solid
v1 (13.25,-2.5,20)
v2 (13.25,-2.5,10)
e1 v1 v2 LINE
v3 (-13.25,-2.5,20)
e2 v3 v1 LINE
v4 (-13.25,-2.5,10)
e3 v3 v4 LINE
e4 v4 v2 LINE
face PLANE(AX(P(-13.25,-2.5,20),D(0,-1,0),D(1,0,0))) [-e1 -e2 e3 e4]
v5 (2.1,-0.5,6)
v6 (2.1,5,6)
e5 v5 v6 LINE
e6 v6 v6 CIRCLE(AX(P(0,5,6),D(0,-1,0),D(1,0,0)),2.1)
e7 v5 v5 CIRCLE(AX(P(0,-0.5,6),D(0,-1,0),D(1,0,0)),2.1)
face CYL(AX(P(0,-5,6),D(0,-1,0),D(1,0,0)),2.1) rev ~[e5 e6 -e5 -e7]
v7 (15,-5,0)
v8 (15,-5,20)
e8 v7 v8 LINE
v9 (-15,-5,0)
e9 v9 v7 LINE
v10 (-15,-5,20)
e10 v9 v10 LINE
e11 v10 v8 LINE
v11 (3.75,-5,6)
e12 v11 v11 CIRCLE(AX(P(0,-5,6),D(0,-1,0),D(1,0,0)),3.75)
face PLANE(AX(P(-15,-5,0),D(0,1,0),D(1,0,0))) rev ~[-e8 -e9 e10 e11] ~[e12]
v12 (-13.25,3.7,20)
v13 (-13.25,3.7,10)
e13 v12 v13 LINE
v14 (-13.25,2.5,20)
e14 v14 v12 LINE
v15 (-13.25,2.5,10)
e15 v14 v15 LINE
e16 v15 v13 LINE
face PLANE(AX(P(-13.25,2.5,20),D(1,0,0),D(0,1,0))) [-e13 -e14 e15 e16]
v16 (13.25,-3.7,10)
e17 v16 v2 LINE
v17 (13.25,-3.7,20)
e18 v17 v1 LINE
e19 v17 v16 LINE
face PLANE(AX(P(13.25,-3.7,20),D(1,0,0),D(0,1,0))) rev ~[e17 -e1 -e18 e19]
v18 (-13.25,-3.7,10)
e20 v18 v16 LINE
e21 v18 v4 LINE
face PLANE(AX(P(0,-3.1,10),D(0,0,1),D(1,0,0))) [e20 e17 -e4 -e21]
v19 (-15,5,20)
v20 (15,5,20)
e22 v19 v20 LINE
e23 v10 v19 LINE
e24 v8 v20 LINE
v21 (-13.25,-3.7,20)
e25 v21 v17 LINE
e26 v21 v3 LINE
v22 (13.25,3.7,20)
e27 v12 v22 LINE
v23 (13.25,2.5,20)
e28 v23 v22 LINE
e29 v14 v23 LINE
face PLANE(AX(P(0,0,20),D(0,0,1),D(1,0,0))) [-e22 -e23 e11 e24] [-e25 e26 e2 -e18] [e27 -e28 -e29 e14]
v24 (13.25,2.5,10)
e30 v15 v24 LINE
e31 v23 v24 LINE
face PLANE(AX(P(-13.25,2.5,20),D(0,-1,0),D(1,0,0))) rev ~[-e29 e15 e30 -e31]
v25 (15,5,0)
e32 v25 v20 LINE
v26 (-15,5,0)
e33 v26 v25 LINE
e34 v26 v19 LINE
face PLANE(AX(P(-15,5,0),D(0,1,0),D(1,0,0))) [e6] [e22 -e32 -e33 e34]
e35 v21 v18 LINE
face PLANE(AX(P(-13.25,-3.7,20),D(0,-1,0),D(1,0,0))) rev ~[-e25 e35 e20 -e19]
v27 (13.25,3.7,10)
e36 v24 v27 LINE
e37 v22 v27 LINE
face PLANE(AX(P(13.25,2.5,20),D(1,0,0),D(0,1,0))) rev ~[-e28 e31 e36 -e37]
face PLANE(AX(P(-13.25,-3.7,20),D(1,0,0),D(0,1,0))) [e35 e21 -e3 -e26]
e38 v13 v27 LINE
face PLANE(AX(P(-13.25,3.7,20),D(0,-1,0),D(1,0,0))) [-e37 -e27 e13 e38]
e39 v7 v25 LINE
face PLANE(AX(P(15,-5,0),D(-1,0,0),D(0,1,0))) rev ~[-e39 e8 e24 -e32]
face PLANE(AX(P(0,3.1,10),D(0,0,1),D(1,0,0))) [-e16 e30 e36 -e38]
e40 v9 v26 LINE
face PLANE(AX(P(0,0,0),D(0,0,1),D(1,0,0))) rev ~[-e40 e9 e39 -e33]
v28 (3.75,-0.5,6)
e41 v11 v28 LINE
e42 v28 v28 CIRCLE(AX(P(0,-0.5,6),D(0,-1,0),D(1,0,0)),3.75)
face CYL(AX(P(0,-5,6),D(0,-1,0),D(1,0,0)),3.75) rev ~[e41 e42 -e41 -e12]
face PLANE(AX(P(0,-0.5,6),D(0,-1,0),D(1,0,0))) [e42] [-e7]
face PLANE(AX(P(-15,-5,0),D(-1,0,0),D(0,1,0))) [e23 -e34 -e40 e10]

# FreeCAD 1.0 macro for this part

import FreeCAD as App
import Part
import Sketcher

V = App.Vector


def add_polygon(sketch, points):
    """Adds a closed chain of lines whose ends are joined by coincident constraints."""
    first, n = sketch.GeometryCount, len(points)
    for a, b in zip(points, points[1:] + points[:1]):
        sketch.addGeometry(Part.LineSegment(App.Vector(*a, 0), App.Vector(*b, 0)), False)
    for i in range(n):
        sketch.addConstraint(Sketcher.Constraint("Coincident", first + i, 2, first + (i + 1) % n, 1))

doc = App.newDocument("Part")
params = doc.addObject("Spreadsheet::Sheet", "Params")
for row, (alias, value) in enumerate([
    ("sketch1_width", "30 mm"),
    ("sketch1_height", "10 mm"),
    ("pad1_length", "20 mm"),
    ("sketch2_diameter", "4.2 mm"),
    ("sketch3_width", "26.5 mm"),
    ("sketch3_height", "1.2 mm"),
    ("pocket2_length", "10 mm"),
    ("sketch4_diameter", "7.5 mm"),
    ("pocket3_length", "4.5 mm"),
], start=1):
    params.set(f"A{row}", alias)
    params.set(f"B{row}", "=" + value)
    params.setAlias(f"B{row}", alias)

body = doc.addObject("PartDesign::Body", "Body")

# Sketch on XY plane
sketch1 = doc.addObject("Sketcher::SketchObject", "Sketch")
body.addObject(sketch1)
sketch1.AttachmentSupport = (doc.XY_Plane, [""])
sketch1.MapMode = "FlatFace"
add_polygon(sketch1, [(-15, 5), (-15, -5), (15, -5), (15, 5)])  # lines 0-3
sketch1.addConstraint([
    Sketcher.Constraint("Vertical", 0),
    Sketcher.Constraint("Horizontal", 1),
    Sketcher.Constraint("Vertical", 2),
    Sketcher.Constraint("Horizontal", 3),
    Sketcher.Constraint("Symmetric", 0, 2, 2, 2, -1, 1),
    Sketcher.Constraint("DistanceX", 1, 1, 1, 2, 30.0),
    Sketcher.Constraint("DistanceY", 0, 2, 0, 1, 10.0),
])
sketch1.setExpression("Constraints[9]", "Params.sketch1_width")
sketch1.setExpression("Constraints[10]", "Params.sketch1_height")
pad1 = doc.addObject("PartDesign::Pad", "Pad")
body.addObject(pad1)
pad1.Profile = sketch1
pad1.setExpression("Length", "Params.pad1_length")

# Sketch on XZ plane
sketch2 = doc.addObject("Sketcher::SketchObject", "Sketch001")
body.addObject(sketch2)
sketch2.AttachmentSupport = (doc.XZ_Plane, [""])
sketch2.MapMode = "FlatFace"
sketch2.AttachmentOffset = App.Placement(V(0, 0, 5), App.Rotation())
sketch2.addGeometry(Part.Circle(V(0, 6, 0), V(0, 0, 1), 2.1), False)
sketch2.addConstraint([
    Sketcher.Constraint("PointOnObject", 0, 3, -2),
    Sketcher.Constraint("Diameter", 0, 4.2),
    Sketcher.Constraint("DistanceY", -1, 1, 0, 3, 6.0),
])
sketch2.setExpression("Constraints[1]", "Params.sketch2_diameter")
pocket1 = doc.addObject("PartDesign::Pocket", "Pocket")
body.addObject(pocket1)
pocket1.Profile = sketch2
pocket1.Type = "ThroughAll"

# Sketch on XY plane
sketch3 = doc.addObject("Sketcher::SketchObject", "Sketch002")
body.addObject(sketch3)
sketch3.AttachmentSupport = (doc.XY_Plane, [""])
sketch3.MapMode = "FlatFace"
sketch3.AttachmentOffset = App.Placement(V(0, 0, 20), App.Rotation())
add_polygon(sketch3, [(-13.2, 3.7), (-13.2, 2.5), (13.2, 2.5), (13.2, 3.7)])  # lines 0-3
add_polygon(sketch3, [(-13.2, -2.5), (-13.2, -3.7), (13.2, -3.7), (13.2, -2.5)])  # lines 4-7
sketch3.addConstraint([
    Sketcher.Constraint("Vertical", 0),
    Sketcher.Constraint("Horizontal", 1),
    Sketcher.Constraint("Vertical", 2),
    Sketcher.Constraint("Horizontal", 3),
    Sketcher.Constraint("Vertical", 4),
    Sketcher.Constraint("Horizontal", 5),
    Sketcher.Constraint("Vertical", 6),
    Sketcher.Constraint("Horizontal", 7),
    Sketcher.Constraint("Symmetric", 2, 2, 4, 2, -1, 1),
    Sketcher.Constraint("Symmetric", 0, 2, 6, 2, -1, 1),
    Sketcher.Constraint("Vertical", 3, 2, 4, 2),
    Sketcher.Constraint("DistanceX", 1, 1, 1, 2, 26.5),
    Sketcher.Constraint("DistanceY", 0, 2, 0, 1, 1.2),
    Sketcher.Constraint("DistanceY", 6, 2, 1, 2, 5.0),
])
sketch3.setExpression("Constraints[19]", "Params.sketch3_width")
sketch3.setExpression("Constraints[20]", "Params.sketch3_height")
pocket2 = doc.addObject("PartDesign::Pocket", "Pocket001")
body.addObject(pocket2)
pocket2.Profile = sketch3
pocket2.setExpression("Length", "Params.pocket2_length")

# Sketch on XZ plane
sketch4 = doc.addObject("Sketcher::SketchObject", "Sketch003")
body.addObject(sketch4)
sketch4.AttachmentSupport = (doc.XZ_Plane, [""])
sketch4.MapMode = "FlatFace"
sketch4.AttachmentOffset = App.Placement(V(0, 0, 5), App.Rotation())
sketch4.addGeometry(Part.Circle(V(0, 6, 0), V(0, 0, 1), 3.8), False)
sketch4.addConstraint([
    Sketcher.Constraint("PointOnObject", 0, 3, -2),
    Sketcher.Constraint("Diameter", 0, 7.5),
    Sketcher.Constraint("DistanceY", -1, 1, 0, 3, 6.0),
])
sketch4.setExpression("Constraints[1]", "Params.sketch4_diameter")
pocket3 = doc.addObject("PartDesign::Pocket", "Pocket002")
body.addObject(pocket3)
pocket3.Profile = sketch4
pocket3.setExpression("Length", "Params.pocket3_length")

doc.recompute()
